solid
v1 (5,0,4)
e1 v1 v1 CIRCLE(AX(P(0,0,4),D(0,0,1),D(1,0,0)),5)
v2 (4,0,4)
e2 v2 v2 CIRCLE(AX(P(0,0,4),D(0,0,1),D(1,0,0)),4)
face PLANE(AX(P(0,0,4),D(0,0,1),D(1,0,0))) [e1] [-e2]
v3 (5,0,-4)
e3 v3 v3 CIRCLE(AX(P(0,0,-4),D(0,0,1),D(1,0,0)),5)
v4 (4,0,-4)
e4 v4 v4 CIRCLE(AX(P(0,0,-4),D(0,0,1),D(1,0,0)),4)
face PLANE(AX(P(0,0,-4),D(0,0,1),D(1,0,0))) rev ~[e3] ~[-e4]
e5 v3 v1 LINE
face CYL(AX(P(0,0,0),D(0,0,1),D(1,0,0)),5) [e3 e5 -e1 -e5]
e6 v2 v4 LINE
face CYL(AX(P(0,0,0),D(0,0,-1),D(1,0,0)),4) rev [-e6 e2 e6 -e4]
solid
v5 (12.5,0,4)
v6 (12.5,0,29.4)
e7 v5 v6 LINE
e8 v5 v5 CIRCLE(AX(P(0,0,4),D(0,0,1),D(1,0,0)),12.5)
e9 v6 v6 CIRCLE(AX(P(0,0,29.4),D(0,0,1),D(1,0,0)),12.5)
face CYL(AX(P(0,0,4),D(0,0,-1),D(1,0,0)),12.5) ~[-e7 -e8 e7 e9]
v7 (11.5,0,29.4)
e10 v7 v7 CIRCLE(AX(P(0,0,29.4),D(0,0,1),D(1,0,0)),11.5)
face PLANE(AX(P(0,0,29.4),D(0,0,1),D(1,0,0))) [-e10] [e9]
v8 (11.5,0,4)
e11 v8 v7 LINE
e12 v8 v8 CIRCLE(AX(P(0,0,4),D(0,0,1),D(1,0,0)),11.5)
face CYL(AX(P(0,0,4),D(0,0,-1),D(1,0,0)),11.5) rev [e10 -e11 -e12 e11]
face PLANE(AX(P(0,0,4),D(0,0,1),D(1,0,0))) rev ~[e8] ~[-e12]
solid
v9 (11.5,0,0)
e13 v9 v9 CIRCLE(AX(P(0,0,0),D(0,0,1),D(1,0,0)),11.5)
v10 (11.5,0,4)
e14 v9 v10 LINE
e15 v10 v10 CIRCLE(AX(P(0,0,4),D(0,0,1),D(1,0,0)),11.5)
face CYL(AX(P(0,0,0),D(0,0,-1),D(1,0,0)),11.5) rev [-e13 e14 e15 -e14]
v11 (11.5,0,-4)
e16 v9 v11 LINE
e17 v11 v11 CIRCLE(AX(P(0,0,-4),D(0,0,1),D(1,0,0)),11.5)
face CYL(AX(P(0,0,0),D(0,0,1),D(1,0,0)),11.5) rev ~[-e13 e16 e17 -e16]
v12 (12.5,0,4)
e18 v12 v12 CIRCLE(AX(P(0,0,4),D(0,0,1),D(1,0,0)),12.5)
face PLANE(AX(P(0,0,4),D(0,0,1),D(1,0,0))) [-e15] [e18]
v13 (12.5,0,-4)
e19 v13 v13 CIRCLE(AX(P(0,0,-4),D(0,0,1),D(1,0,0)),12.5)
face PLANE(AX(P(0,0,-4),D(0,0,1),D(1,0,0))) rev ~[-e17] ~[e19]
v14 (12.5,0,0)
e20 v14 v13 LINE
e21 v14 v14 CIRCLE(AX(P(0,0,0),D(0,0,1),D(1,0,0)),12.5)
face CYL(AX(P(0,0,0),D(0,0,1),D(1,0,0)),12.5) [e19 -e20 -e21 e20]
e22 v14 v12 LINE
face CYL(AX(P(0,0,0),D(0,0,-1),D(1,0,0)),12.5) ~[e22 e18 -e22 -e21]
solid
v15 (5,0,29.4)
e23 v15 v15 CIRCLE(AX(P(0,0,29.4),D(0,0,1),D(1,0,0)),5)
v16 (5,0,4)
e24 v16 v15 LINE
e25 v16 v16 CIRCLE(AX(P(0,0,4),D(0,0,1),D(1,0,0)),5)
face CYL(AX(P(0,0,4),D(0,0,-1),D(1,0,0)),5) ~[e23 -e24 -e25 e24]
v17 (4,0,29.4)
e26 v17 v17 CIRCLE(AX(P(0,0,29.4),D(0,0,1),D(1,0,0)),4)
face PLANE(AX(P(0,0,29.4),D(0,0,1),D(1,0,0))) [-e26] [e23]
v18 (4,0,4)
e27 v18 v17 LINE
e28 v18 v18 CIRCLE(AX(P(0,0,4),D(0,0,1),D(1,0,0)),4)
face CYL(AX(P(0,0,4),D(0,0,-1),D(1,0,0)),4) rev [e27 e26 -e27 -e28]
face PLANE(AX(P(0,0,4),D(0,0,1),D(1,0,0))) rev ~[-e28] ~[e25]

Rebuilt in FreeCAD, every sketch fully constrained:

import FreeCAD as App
import Part
import Sketcher
from FreeCAD import Vector
Q = App.Units.Quantity

doc = App.newDocument("Part")
body = doc.addObject("PartDesign::Body", "Body")
body.AllowCompound = True

sketch1 = doc.addObject("Sketcher::SketchObject", "Sketch")
body.addObject(sketch1)
sketch1.AttachmentSupport = (doc.XY_Plane, [""])
sketch1.MapMode = "FlatFace"
sketch1.addGeometry(Part.Circle(Vector(0, 0, 0), Vector(0, 0, 1), 12.5), False)
sketch1.addGeometry(Part.Circle(Vector(0, 0, 0), Vector(0, 0, 1), 11.5), False)
sketch1.addGeometry(Part.Circle(Vector(0, 0, 0), Vector(0, 0, 1), 5), False)
sketch1.addGeometry(Part.Circle(Vector(0, 0, 0), Vector(0, 0, 1), 4), False)
sketch1.addConstraint(Sketcher.Constraint("Coincident", 0, 3, -1, 1))
sketch1.addConstraint(Sketcher.Constraint("Coincident", 1, 3, -1, 1))
sketch1.addConstraint(Sketcher.Constraint("Coincident", 2, 3, -1, 1))
sketch1.addConstraint(Sketcher.Constraint("Coincident", 3, 3, -1, 1))
sketch1.addConstraint(Sketcher.Constraint("Diameter", 0, Q("25 mm")))
sketch1.addConstraint(Sketcher.Constraint("Diameter", 1, Q("23 mm")))
sketch1.addConstraint(Sketcher.Constraint("Diameter", 2, Q("10 mm")))
sketch1.addConstraint(Sketcher.Constraint("Diameter", 3, Q("8 mm")))
pad1 = doc.addObject("PartDesign::Pad", "Pad")
body.addObject(pad1)
pad1.Profile = sketch1
pad1.Length = 8
pad1.Midplane = True
body2 = doc.addObject("PartDesign::Body", "Body001")
body2.AllowCompound = True

sketch2 = doc.addObject("Sketcher::SketchObject", "Sketch001")
body2.addObject(sketch2)
sketch2.AttachmentSupport = (doc.getObject("XY_Plane001"), [""])
sketch2.MapMode = "FlatFace"
sketch2.AttachmentOffset = App.Placement(Vector(0, 0, 4), App.Rotation())
sketch2.addGeometry(Part.Circle(Vector(0, 0, 0), Vector(0, 0, 1), 5), False)
sketch2.addGeometry(Part.Circle(Vector(0, 0, 0), Vector(0, 0, 1), 4), False)
sketch2.addGeometry(Part.Circle(Vector(0, 0, 0), Vector(0, 0, 1), 12.5), False)
sketch2.addGeometry(Part.Circle(Vector(0, 0, 0), Vector(0, 0, 1), 11.5), False)
sketch2.addConstraint(Sketcher.Constraint("Coincident", 0, 3, -1, 1))
sketch2.addConstraint(Sketcher.Constraint("Coincident", 1, 3, -1, 1))
sketch2.addConstraint(Sketcher.Constraint("Coincident", 2, 3, -1, 1))
sketch2.addConstraint(Sketcher.Constraint("Coincident", 3, 3, -1, 1))
sketch2.addConstraint(Sketcher.Constraint("Diameter", 0, Q("10 mm")))
sketch2.addConstraint(Sketcher.Constraint("Diameter", 1, Q("8 mm")))
sketch2.addConstraint(Sketcher.Constraint("Diameter", 2, Q("25 mm")))
sketch2.addConstraint(Sketcher.Constraint("Diameter", 3, Q("23 mm")))
pad2 = doc.addObject("PartDesign::Pad", "Pad001")
body2.addObject(pad2)
pad2.Profile = sketch2
pad2.Length = 25.4

doc.recompute()
